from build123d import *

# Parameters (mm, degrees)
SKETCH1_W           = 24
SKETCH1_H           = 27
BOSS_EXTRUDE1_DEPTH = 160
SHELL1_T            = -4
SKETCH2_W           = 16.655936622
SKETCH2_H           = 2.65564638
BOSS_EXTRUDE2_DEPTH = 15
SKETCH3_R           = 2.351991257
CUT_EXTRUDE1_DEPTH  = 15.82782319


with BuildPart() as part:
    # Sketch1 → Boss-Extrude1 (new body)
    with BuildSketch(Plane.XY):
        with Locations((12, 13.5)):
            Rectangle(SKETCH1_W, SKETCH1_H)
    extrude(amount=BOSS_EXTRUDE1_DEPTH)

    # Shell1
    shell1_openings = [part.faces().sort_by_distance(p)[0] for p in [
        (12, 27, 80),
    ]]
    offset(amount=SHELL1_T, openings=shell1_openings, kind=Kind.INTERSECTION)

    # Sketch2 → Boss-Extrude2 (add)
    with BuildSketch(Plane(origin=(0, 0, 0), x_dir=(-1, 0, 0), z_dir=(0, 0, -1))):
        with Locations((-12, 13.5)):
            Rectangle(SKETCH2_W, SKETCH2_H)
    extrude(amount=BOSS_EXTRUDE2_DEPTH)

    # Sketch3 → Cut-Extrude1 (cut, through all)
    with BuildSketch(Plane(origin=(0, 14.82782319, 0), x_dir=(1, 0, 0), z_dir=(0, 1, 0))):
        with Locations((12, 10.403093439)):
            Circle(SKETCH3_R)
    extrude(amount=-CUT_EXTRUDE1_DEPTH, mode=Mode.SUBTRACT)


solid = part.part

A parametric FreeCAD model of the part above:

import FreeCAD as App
import Part
import Sketcher

V = App.Vector


def faces_at(feature, points):
    """Names of the faces that lie closest to the given points."""
    faces = feature.Shape.Faces
    near = lambda p: min(range(len(faces)), key=lambda i: faces[i].distToShape(Part.Vertex(*p))[0])
    return sorted({f"Face{near(p) + 1}" for p in points})


def add_polygon(sketch, points):
    """Adds a closed chain of lines whose ends are joined by coincident constraints."""
    first, n = sketch.GeometryCount, len(points)
    for a, b in zip(points, points[1:] + points[:1]):
        sketch.addGeometry(Part.LineSegment(App.Vector(*a, 0), App.Vector(*b, 0)), False)
    for i in range(n):
        sketch.addConstraint(Sketcher.Constraint("Coincident", first + i, 2, first + (i + 1) % n, 1))

doc = App.newDocument("Part")
params = doc.addObject("Spreadsheet::Sheet", "Params")
for row, (alias, value) in enumerate([
    ("sketch1_width", "24 mm"),
    ("sketch1_height", "27 mm"),
    ("pad1_length", "160 mm"),
    ("thickness_wall", "4 mm"),
    ("pad2_length", "15 mm"),
], start=1):
    params.set(f"A{row}", alias)
    params.set(f"B{row}", "=" + value)
    params.setAlias(f"B{row}", alias)

body = doc.addObject("PartDesign::Body", "Body")

# Sketch on XY plane
sketch1 = doc.addObject("Sketcher::SketchObject", "Sketch")
body.addObject(sketch1)
sketch1.AttachmentSupport = (doc.XY_Plane, [""])
sketch1.MapMode = "FlatFace"
add_polygon(sketch1, [(0, 27), (0, 0), (24, 0), (24, 27)])  # lines 0-3
sketch1.addConstraint(Sketcher.Constraint("Vertical", 0))
sketch1.addConstraint(Sketcher.Constraint("Horizontal", 1))
sketch1.addConstraint(Sketcher.Constraint("Vertical", 2))
sketch1.addConstraint(Sketcher.Constraint("Horizontal", 3))
sketch1.addConstraint(Sketcher.Constraint("Coincident", 0, 2, -1, 1))
sketch1.addConstraint(Sketcher.Constraint("DistanceX", 1, 1, 1, 2, 24.0))
sketch1.addConstraint(Sketcher.Constraint("DistanceY", 0, 2, 0, 1, 27.0))
sketch1.setExpression("Constraints[9]", "Params.sketch1_width")
sketch1.setExpression("Constraints[10]", "Params.sketch1_height")
pad1 = doc.addObject("PartDesign::Pad", "Pad")
body.addObject(pad1)
pad1.Profile = sketch1
pad1.setExpression("Length", "Params.pad1_length")
doc.recompute()

thickness = doc.addObject("PartDesign::Thickness", "Thickness")
body.addObject(thickness)
thickness.Base = (pad1, faces_at(pad1, [(12, 27, 80)]))
thickness.setExpression("Value", "Params.thickness_wall")
thickness.Reversed = True
thickness.Join = "Intersection"

# Sketch on XY plane
sketch2 = doc.addObject("Sketcher::SketchObject", "Sketch001")
body.addObject(sketch2)
sketch2.AttachmentSupport = (doc.XY_Plane, [""])
sketch2.MapMode = "FlatFace"
add_polygon(sketch2, [(20.3, 14.8), (20.3, 12.2), (3.7, 12.2), (3.7, 14.8)])  # lines 0-3
sketch2.addConstraint(Sketcher.Constraint("Vertical", 0))
sketch2.addConstraint(Sketcher.Constraint("Horizontal", 1))
sketch2.addConstraint(Sketcher.Constraint("Vertical", 2))
sketch2.addConstraint(Sketcher.Constraint("Horizontal", 3))
sketch2.addConstraint(Sketcher.Constraint("DistanceX", 1, 2, 1, 1, 16.655937))
sketch2.addConstraint(Sketcher.Constraint("DistanceY", 0, 2, 0, 1, 2.655646))
sketch2.addConstraint(Sketcher.Constraint("DistanceX", -1, 1, 0, 2, 20.327968))
sketch2.addConstraint(Sketcher.Constraint("DistanceY", -1, 1, 0, 2, 12.172177))
pad2 = doc.addObject("PartDesign::Pad", "Pad001")
body.addObject(pad2)
pad2.Profile = sketch2
pad2.setExpression("Length", "Params.pad2_length")
pad2.Reversed = True

# Sketch on XZ plane
sketch3 = doc.addObject("Sketcher::SketchObject", "Sketch002")
body.addObject(sketch3)
sketch3.AttachmentSupport = (doc.XZ_Plane, [""])
sketch3.MapMode = "FlatFace"
sketch3.AttachmentOffset = App.Placement(V(0, 0, -14.827823), App.Rotation())
sketch3.addGeometry(Part.Circle(V(12, -10.4, 0), V(0, 0, 1), 2.4), False)
sketch3.addConstraint(Sketcher.Constraint("DistanceX", -1, 1, 0, 3, 12.0))
sketch3.addConstraint(Sketcher.Constraint("Diameter", 0, 4.703983))
sketch3.addConstraint(Sketcher.Constraint("DistanceY", 0, 3, -1, 1, 10.403093))
pocket1 = doc.addObject("PartDesign::Pocket", "Pocket")
body.addObject(pocket1)
pocket1.Profile = sketch3
pocket1.Type = "ThroughAll"
pocket1.Reversed = True

doc.recompute()
